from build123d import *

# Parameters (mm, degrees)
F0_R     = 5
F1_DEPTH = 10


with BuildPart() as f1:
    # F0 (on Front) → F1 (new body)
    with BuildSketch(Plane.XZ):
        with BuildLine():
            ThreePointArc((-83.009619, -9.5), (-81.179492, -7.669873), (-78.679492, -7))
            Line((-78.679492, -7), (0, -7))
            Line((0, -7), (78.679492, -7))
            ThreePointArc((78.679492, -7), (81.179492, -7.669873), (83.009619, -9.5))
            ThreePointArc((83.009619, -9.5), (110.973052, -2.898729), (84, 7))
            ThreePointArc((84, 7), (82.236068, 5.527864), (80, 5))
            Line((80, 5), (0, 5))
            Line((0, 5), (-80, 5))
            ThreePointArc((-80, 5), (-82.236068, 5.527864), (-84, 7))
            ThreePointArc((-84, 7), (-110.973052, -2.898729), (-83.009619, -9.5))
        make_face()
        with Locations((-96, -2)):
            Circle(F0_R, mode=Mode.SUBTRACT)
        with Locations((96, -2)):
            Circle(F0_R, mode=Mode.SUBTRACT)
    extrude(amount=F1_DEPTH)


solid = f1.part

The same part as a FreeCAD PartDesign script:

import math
import FreeCAD as App
import Part
import Sketcher

V = App.Vector

doc = App.newDocument("Part")
body = doc.addObject("PartDesign::Body", "Body")

sketch1 = body.newObject("Sketcher::SketchObject", "Sketch")
sketch1.AttachmentSupport = (doc.getObject("XZ_Plane"), [""])
sketch1.MapMode = "FlatFace"
sketch1.addGeometry(Part.ArcOfCircle(Part.Circle(V(-78.7, -12, 0), V(0, 0, 1), 5), math.radians(90), math.radians(150)), False)
sketch1.addGeometry(Part.LineSegment(V(-78.7, -7, 0), V(78.7, -7, 0)), False)
sketch1.addGeometry(Part.ArcOfCircle(Part.Circle(V(78.7, -12, 0), V(0, 0, 1), 5), math.radians(30), math.radians(90)), False)
sketch1.addGeometry(Part.ArcOfCircle(Part.Circle(V(96, -2, 0), V(0, 0, 1), 15), math.radians(-150), math.radians(143)), False)
sketch1.addGeometry(Part.ArcOfCircle(Part.Circle(V(80, 10, 0), V(0, 0, 1), 5), math.radians(-90), math.radians(-37)), False)
sketch1.addGeometry(Part.LineSegment(V(80, 5, 0), V(-80, 5, 0)), False)
sketch1.addGeometry(Part.ArcOfCircle(Part.Circle(V(-80, 10, 0), V(0, 0, 1), 5), math.radians(-143), math.radians(-90)), False)
sketch1.addGeometry(Part.ArcOfCircle(Part.Circle(V(-96, -2, 0), V(0, 0, 1), 15), math.radians(37), math.radians(330)), False)
sketch1.addGeometry(Part.Circle(V(-96, -2, 0), V(0, 0, 1), 5), False)
sketch1.addGeometry(Part.Circle(V(96, -2, 0), V(0, 0, 1), 5), False)
sketch1.addConstraint(Sketcher.Constraint("Tangent", 0, 1, 1, 1))
sketch1.addConstraint(Sketcher.Constraint("Tangent", 1, 2, 2, 2))
sketch1.addConstraint(Sketcher.Constraint("Tangent", 2, 1, 3, 1))
sketch1.addConstraint(Sketcher.Constraint("Tangent", 3, 2, 4, 2))
sketch1.addConstraint(Sketcher.Constraint("Tangent", 4, 1, 5, 1))
sketch1.addConstraint(Sketcher.Constraint("Tangent", 5, 2, 6, 2))
sketch1.addConstraint(Sketcher.Constraint("Tangent", 6, 1, 7, 1))
sketch1.addConstraint(Sketcher.Constraint("Tangent", 7, 2, 0, 2))
sketch1.addConstraint(Sketcher.Constraint("Horizontal", 1))
sketch1.addConstraint(Sketcher.Constraint("Horizontal", 5))
sketch1.addConstraint(Sketcher.Constraint("Coincident", 8, 3, 7, 3))
sketch1.addConstraint(Sketcher.Constraint("Coincident", 9, 3, 3, 3))
sketch1.addConstraint(Sketcher.Constraint("Equal", 0, 2))
sketch1.addConstraint(Sketcher.Constraint("Equal", 2, 4))
sketch1.addConstraint(Sketcher.Constraint("Equal", 4, 6))
sketch1.addConstraint(Sketcher.Constraint("Equal", 3, 7))
sketch1.addConstraint(Sketcher.Constraint("Equal", 6, 8))
sketch1.addConstraint(Sketcher.Constraint("Equal", 8, 9))
sketch1.addConstraint(Sketcher.Constraint("Symmetric", 3, 3, 7, 3, -2))
sketch1.addConstraint(Sketcher.Constraint("Diameter", 8, 10.0))
sketch1.addConstraint(Sketcher.Constraint("Radius", 3, 15.0))
sketch1.addConstraint(Sketcher.Constraint("DistanceX", 5, 2, 5, 1, 160.0))
sketch1.addConstraint(Sketcher.Constraint("DistanceY", 0, 3, -1, 1, 12.0))
sketch1.addConstraint(Sketcher.Constraint("DistanceX", -1, 1, 3, 3, 96.0))
sketch1.addConstraint(Sketcher.Constraint("DistanceY", 3, 3, -1, 1, 2.0))
pad1 = body.newObject("PartDesign::Pad", "Pad")
pad1.Profile = sketch1
pad1.Length = 10

doc.recompute()
